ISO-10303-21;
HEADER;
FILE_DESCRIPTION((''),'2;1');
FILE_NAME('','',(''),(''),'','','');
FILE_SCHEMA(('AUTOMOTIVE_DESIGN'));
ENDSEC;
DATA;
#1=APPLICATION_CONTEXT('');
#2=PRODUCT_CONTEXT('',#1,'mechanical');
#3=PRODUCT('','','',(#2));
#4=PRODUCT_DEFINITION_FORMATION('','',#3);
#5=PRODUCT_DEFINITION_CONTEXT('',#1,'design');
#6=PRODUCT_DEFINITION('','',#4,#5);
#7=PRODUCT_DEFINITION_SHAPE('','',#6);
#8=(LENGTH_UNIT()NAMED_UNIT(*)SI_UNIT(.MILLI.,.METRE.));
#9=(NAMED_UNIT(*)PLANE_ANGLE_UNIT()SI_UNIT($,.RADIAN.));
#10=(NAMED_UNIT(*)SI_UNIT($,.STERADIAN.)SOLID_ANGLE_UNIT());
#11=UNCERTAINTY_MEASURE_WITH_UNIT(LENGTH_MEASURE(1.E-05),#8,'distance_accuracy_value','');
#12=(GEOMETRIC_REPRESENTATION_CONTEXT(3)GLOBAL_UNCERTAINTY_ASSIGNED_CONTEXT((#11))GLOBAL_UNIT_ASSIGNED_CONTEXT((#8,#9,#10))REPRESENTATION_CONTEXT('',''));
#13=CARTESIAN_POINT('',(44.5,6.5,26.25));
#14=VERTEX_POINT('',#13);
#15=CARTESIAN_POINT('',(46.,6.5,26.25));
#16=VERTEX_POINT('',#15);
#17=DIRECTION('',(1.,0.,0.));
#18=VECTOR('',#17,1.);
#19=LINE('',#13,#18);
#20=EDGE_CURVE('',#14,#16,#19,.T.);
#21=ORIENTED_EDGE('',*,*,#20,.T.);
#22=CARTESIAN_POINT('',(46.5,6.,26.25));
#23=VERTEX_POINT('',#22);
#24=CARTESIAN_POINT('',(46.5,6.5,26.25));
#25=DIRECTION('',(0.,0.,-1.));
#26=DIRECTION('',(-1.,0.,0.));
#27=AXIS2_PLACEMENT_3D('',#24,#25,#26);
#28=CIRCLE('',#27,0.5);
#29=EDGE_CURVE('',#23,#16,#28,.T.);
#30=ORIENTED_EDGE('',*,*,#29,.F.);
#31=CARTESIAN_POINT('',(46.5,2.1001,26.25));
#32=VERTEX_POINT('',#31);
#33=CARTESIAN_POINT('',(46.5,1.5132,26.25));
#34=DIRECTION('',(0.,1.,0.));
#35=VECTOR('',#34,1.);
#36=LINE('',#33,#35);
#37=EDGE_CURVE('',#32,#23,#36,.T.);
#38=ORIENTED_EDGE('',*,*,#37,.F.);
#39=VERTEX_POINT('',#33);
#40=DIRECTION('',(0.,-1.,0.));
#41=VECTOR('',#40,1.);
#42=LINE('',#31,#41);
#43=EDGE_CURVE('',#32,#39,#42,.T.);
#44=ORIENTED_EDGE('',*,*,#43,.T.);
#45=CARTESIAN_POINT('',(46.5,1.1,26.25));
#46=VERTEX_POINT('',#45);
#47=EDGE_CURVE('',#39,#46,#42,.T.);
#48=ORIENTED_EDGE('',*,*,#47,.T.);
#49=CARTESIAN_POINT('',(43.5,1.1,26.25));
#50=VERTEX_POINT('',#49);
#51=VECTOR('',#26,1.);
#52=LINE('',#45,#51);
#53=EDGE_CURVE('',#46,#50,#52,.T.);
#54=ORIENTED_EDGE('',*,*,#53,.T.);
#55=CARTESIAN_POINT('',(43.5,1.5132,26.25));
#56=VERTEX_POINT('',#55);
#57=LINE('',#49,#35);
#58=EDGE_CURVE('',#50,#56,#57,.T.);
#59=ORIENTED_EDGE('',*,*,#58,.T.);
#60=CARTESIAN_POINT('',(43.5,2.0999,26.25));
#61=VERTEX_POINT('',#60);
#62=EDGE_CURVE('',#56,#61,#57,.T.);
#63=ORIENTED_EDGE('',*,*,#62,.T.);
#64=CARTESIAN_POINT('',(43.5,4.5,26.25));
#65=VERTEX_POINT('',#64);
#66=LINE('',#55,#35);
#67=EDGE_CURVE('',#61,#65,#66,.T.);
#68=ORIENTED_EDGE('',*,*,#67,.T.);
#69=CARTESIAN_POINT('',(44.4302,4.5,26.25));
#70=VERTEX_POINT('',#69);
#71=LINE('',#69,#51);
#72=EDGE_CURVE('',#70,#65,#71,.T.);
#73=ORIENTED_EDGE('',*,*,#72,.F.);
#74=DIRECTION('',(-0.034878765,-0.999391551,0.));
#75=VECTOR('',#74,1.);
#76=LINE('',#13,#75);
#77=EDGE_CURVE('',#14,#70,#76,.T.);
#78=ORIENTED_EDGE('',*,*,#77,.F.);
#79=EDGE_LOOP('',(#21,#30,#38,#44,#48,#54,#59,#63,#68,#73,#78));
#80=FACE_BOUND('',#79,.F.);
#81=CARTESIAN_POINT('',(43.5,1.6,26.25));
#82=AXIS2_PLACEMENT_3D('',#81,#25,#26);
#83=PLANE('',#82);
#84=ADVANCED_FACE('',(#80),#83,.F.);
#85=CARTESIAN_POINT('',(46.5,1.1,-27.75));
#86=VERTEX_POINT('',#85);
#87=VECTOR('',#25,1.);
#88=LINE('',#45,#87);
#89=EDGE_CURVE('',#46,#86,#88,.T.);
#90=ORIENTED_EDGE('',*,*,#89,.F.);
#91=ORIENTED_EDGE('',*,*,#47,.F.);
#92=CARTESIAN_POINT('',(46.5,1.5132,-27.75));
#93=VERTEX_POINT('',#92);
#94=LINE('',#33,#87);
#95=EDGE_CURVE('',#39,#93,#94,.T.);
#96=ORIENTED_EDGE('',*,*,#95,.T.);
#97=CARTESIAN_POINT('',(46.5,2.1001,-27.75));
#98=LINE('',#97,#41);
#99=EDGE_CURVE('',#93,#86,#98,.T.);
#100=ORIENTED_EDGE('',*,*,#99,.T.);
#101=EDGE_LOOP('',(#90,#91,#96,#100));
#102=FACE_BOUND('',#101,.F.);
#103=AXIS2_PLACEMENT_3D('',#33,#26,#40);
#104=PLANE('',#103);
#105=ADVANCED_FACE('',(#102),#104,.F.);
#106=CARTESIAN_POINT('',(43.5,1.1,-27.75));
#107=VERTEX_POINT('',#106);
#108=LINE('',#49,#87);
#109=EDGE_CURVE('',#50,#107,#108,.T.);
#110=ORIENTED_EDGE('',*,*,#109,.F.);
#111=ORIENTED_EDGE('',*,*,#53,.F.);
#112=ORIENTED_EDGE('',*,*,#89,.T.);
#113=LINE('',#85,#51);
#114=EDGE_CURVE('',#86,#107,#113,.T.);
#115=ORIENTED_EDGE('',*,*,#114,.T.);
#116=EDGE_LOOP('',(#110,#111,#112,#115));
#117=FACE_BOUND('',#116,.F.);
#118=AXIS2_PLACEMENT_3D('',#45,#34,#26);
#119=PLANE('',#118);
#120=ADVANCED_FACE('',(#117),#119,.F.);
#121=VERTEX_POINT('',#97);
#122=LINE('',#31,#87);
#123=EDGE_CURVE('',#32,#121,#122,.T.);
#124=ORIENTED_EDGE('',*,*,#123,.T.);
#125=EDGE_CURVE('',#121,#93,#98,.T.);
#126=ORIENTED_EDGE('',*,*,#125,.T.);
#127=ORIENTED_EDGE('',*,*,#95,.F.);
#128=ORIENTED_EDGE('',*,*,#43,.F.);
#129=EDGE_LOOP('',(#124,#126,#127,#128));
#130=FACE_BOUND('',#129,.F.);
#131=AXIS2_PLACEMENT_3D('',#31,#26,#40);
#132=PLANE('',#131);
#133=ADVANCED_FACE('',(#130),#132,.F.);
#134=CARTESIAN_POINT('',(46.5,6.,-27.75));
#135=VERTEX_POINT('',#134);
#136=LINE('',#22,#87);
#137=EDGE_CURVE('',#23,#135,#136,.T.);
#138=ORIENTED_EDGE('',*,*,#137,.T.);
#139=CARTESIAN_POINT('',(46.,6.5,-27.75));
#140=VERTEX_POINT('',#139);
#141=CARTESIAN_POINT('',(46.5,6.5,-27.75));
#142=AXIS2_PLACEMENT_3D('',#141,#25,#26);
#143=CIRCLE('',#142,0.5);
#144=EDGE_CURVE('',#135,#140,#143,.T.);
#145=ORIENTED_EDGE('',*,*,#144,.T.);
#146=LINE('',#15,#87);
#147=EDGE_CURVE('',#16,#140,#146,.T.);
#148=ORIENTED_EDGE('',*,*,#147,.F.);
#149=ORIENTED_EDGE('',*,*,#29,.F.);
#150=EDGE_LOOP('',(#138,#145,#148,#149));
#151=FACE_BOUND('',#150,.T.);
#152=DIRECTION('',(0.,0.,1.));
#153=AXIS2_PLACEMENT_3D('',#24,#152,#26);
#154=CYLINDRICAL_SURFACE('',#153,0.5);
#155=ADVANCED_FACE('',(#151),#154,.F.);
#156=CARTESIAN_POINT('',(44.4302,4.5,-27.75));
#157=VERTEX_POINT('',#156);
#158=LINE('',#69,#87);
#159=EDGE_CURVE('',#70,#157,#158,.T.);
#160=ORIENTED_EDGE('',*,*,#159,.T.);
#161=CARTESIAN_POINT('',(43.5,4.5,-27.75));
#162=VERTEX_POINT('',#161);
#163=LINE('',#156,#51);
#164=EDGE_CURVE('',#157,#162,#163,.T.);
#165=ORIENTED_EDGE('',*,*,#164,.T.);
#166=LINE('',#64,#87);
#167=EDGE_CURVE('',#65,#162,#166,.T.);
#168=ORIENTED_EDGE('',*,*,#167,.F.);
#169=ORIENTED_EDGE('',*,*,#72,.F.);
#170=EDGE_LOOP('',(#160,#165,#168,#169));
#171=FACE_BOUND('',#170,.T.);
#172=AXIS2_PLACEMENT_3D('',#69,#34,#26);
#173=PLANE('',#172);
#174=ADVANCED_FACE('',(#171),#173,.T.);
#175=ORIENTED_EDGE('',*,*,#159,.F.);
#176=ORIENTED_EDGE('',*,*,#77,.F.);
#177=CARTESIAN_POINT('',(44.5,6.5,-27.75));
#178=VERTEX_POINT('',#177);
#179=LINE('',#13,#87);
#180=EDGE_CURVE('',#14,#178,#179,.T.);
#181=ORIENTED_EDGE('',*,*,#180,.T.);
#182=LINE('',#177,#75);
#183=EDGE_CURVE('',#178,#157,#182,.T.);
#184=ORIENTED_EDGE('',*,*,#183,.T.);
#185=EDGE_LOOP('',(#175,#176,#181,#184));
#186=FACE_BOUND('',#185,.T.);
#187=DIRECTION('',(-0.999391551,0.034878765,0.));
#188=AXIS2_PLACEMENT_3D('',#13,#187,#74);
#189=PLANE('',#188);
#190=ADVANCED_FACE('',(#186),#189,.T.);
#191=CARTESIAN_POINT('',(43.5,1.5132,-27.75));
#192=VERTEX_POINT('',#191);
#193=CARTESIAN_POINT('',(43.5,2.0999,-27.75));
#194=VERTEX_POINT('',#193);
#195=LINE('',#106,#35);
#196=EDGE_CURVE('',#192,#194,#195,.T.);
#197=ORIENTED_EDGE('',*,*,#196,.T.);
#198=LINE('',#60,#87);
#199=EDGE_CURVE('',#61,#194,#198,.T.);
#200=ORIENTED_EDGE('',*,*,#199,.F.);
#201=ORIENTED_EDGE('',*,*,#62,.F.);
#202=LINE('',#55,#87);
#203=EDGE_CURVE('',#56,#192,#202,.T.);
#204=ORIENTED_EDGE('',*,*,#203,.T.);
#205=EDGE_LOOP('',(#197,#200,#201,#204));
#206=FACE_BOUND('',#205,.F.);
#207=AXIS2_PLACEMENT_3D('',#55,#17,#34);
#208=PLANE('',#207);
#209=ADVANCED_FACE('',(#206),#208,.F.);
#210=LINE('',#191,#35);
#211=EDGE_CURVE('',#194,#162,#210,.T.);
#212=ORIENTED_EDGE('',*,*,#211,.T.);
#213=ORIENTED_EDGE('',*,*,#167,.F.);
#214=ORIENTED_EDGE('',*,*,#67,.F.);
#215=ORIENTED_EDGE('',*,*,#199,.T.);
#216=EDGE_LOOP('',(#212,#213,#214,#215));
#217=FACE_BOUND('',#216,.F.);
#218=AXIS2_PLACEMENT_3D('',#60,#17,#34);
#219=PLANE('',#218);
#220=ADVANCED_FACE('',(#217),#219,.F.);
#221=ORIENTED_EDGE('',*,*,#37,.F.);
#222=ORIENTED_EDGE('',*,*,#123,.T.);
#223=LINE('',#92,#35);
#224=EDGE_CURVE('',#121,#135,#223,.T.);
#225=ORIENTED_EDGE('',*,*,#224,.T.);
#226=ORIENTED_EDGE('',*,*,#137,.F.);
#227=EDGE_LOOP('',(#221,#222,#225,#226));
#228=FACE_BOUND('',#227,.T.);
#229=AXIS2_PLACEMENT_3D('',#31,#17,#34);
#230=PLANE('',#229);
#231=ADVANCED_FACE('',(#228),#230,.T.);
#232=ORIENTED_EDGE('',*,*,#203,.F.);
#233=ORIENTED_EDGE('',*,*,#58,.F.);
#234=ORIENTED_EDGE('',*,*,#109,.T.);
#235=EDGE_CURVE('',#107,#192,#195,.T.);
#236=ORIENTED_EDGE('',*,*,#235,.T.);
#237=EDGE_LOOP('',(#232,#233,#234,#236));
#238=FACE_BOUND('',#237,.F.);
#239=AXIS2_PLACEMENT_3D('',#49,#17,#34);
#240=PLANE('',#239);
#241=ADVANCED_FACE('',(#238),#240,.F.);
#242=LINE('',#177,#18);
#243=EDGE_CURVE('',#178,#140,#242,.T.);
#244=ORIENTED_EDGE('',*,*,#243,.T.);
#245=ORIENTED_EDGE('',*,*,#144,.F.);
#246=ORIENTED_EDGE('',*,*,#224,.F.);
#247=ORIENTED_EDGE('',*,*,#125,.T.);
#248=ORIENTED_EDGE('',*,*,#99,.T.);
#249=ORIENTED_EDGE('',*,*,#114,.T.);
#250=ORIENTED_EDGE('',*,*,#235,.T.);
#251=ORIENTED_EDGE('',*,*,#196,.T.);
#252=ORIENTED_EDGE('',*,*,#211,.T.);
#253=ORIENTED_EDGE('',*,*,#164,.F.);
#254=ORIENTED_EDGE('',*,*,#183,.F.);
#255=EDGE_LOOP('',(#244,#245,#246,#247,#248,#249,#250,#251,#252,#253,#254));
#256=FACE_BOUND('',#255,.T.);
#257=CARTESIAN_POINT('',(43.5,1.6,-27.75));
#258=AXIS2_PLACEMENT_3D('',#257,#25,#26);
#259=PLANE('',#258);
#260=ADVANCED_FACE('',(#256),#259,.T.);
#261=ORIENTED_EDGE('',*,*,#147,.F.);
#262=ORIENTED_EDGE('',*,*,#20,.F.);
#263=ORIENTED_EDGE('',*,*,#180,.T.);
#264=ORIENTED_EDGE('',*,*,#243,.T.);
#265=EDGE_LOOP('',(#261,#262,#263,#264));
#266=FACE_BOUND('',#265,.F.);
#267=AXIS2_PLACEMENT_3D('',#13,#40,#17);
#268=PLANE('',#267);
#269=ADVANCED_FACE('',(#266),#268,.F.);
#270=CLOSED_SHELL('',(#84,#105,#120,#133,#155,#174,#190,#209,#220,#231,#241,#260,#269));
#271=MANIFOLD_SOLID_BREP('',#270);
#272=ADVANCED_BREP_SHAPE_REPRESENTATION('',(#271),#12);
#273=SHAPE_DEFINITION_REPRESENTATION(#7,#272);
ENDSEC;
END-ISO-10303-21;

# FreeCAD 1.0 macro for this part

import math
import FreeCAD as App
import Part
import Sketcher

V = App.Vector
Q = App.Units.Quantity

doc = App.newDocument("Part")
body = doc.addObject("PartDesign::Body", "Body")

sketch1 = doc.addObject("Sketcher::SketchObject", "Sketch")
body.addObject(sketch1)
sketch1.AttachmentSupport = (doc.XY_Plane, [""])
sketch1.MapMode = "FlatFace"
sketch1.AttachmentOffset = App.Placement(V(0, 0, 26.25), App.Rotation())
sketch1.addGeometry([
    Part.LineSegment(V(46.5, 6, 0), V(46.5, 1.1, 0)),
    Part.LineSegment(V(46.5, 1.1, 0), V(43.5, 1.1, 0)),
    Part.LineSegment(V(43.5, 1.1, 0), V(43.5, 4.5, 0)),
    Part.LineSegment(V(43.5, 4.5, 0), V(44.4, 4.5, 0)),
    Part.LineSegment(V(44.4, 4.5, 0), V(44.5, 6.5, 0)),
    Part.LineSegment(V(44.5, 6.5, 0), V(46, 6.5, 0)),
    Part.ArcOfCircle(Part.Circle(V(46.5, 6.5, 0), V(0, 0, 1), 0.5), math.radians(180), math.radians(270)),
], False)
sketch1.addConstraint([
    Sketcher.Constraint("Coincident", 0, 2, 1, 1),
    Sketcher.Constraint("Coincident", 1, 2, 2, 1),
    Sketcher.Constraint("Coincident", 2, 2, 3, 1),
    Sketcher.Constraint("Coincident", 3, 2, 4, 1),
    Sketcher.Constraint("Coincident", 4, 2, 5, 1),
    Sketcher.Constraint("Coincident", 5, 2, 6, 1),
    Sketcher.Constraint("Coincident", 6, 2, 0, 1),
    Sketcher.Constraint("Vertical", 0),
    Sketcher.Constraint("Horizontal", 1),
    Sketcher.Constraint("Vertical", 2),
    Sketcher.Constraint("Horizontal", 3),
    Sketcher.Constraint("Horizontal", 5),
    Sketcher.Constraint("Horizontal", 6, 3, 4, 2),
    Sketcher.Constraint("Vertical", 6, 3, 0, 2),
    Sketcher.Constraint("Radius", 6, 0.5),
    Sketcher.Constraint("DistanceX", 1, 2, 1, 1, 3.0),
    Sketcher.Constraint("Angle", 4, Q("88.0012 deg")),
    Sketcher.Constraint("DistanceX", 5, 1, 5, 2, 1.5),
    Sketcher.Constraint("DistanceY", 0, 2, 0, 1, 4.9),
    Sketcher.Constraint("DistanceY", 2, 1, 2, 2, 3.4),
    Sketcher.Constraint("DistanceX", -1, 1, 5, 2, 46.0),
    Sketcher.Constraint("DistanceY", -1, 1, 6, 2, 6.0),
])
pad1 = doc.addObject("PartDesign::Pad", "Pad")
body.addObject(pad1)
pad1.Profile = sketch1
pad1.Length = 54
pad1.Reversed = True

doc.recompute()
